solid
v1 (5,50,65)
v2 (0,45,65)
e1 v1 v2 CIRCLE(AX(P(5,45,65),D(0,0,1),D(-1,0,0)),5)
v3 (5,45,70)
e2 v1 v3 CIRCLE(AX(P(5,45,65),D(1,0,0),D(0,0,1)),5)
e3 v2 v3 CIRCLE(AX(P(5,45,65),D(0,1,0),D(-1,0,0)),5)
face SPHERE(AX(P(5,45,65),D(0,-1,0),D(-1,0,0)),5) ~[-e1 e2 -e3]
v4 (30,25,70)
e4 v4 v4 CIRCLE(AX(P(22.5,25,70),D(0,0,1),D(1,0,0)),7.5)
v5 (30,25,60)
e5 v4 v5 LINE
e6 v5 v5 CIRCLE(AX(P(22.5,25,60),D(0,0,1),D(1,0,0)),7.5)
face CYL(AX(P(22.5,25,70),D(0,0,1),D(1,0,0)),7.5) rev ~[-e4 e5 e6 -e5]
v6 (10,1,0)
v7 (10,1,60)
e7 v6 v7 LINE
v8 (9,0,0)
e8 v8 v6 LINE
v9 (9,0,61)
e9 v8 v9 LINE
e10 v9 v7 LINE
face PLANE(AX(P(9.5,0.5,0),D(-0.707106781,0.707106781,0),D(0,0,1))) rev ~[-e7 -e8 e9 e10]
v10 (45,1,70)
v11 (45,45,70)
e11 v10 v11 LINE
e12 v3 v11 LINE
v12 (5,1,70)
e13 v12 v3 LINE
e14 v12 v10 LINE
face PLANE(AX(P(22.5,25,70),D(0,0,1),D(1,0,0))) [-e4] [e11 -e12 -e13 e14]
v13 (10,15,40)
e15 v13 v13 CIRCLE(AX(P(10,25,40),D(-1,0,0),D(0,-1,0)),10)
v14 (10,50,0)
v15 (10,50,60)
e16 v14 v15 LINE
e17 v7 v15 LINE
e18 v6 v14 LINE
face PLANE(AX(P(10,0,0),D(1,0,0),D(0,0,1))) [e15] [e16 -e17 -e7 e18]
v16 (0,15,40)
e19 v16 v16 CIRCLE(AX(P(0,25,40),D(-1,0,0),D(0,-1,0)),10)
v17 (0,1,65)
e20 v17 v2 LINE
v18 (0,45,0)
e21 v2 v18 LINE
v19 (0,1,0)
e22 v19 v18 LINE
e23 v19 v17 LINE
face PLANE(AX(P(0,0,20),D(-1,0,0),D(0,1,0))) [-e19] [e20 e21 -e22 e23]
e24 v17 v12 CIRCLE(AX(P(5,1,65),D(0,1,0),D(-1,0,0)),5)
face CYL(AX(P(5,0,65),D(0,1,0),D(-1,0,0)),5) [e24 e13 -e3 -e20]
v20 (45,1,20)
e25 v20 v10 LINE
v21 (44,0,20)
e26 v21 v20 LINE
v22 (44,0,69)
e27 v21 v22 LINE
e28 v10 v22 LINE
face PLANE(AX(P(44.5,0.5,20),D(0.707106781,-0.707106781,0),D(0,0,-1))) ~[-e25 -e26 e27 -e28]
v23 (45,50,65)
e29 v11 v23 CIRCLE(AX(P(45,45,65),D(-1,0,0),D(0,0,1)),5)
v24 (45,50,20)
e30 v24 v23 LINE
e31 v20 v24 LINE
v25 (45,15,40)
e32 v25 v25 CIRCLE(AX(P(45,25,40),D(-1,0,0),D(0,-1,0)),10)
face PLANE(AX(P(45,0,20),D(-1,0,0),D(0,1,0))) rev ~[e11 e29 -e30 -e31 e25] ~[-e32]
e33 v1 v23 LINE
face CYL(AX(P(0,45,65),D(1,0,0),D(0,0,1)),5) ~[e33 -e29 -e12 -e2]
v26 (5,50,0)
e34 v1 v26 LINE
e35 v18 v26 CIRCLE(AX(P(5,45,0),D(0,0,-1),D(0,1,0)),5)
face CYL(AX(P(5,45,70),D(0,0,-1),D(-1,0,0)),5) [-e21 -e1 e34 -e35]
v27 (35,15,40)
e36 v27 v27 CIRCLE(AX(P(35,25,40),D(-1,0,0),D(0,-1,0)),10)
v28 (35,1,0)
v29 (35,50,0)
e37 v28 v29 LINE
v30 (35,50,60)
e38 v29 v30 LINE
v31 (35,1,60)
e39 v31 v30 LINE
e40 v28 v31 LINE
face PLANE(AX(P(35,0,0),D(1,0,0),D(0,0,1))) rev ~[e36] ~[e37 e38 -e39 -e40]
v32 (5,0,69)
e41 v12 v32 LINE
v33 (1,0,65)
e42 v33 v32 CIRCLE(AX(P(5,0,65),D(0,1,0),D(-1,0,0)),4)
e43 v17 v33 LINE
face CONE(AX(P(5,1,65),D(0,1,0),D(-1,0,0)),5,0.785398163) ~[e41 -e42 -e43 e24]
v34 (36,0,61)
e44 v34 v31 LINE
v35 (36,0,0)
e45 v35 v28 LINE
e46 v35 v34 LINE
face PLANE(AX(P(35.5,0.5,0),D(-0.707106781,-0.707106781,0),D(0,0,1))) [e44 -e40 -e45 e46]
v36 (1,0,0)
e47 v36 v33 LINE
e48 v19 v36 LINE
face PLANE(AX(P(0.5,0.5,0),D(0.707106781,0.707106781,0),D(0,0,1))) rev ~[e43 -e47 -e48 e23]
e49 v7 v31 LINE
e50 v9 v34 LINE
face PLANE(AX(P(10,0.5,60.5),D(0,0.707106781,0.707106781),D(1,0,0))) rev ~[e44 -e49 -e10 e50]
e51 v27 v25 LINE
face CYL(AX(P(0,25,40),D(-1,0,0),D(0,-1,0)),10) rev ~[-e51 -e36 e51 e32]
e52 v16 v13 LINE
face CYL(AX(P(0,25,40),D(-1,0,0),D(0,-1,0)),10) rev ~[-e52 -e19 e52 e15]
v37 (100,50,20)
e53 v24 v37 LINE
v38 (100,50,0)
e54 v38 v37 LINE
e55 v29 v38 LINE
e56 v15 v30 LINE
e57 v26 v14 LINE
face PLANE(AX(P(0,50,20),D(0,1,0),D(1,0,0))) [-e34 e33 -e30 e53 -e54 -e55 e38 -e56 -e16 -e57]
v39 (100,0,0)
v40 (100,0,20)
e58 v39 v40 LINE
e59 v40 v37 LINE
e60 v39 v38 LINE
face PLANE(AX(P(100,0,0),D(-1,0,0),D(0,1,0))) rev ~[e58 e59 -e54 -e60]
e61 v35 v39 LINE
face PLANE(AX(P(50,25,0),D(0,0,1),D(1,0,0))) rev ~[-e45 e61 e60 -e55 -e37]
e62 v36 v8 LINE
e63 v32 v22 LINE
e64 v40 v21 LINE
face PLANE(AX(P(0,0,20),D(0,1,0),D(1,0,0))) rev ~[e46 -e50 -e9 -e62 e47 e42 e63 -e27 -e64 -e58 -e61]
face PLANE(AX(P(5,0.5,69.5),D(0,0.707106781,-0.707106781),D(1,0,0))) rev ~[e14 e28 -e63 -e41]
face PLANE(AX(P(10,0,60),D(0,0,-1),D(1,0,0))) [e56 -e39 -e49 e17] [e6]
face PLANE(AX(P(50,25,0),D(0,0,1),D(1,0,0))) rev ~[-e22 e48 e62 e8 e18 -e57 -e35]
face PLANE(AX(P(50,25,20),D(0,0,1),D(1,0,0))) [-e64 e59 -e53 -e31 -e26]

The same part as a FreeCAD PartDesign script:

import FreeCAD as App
import Part
import Sketcher
from FreeCAD import Vector


def edges_at(feature, points):
    """Names of the edges that pass closest to the given points."""
    edges = feature.Shape.Edges
    near = lambda p: min(range(len(edges)), key=lambda i: edges[i].distToShape(Part.Vertex(*p))[0])
    return sorted({f"Edge{near(p) + 1}" for p in points})

doc = App.newDocument("Part")
body = doc.addObject("PartDesign::Body", "Body")

# Sketch on XY plane
sketch1 = body.newObject("Sketcher::SketchObject", "Sketch")
sketch1.AttachmentSupport = (doc.getObject("XY_Plane"), [""])
sketch1.MapMode = "FlatFace"
sketch1.addGeometry(Part.LineSegment(Vector(0, 50, 0), Vector(0, 0, 0)), False)
sketch1.addGeometry(Part.LineSegment(Vector(0, 0, 0), Vector(100, 0, 0)), False)
sketch1.addGeometry(Part.LineSegment(Vector(100, 0, 0), Vector(100, 50, 0)), False)
sketch1.addGeometry(Part.LineSegment(Vector(100, 50, 0), Vector(0, 50, 0)), False)
sketch1.addConstraint(Sketcher.Constraint("Coincident", 0, 2, 1, 1))
sketch1.addConstraint(Sketcher.Constraint("Coincident", 1, 2, 2, 1))
sketch1.addConstraint(Sketcher.Constraint("Coincident", 2, 2, 3, 1))
sketch1.addConstraint(Sketcher.Constraint("Coincident", 3, 2, 0, 1))
sketch1.addConstraint(Sketcher.Constraint("Vertical", 0))
sketch1.addConstraint(Sketcher.Constraint("Horizontal", 1))
sketch1.addConstraint(Sketcher.Constraint("Vertical", 2))
sketch1.addConstraint(Sketcher.Constraint("Horizontal", 3))
sketch1.addConstraint(Sketcher.Constraint("Coincident", 0, 2, -1, 1))
sketch1.addConstraint(Sketcher.Constraint("DistanceX", 1, 1, 1, 2, 100.0))
sketch1.addConstraint(Sketcher.Constraint("DistanceY", 0, 2, 0, 1, 50.0))
pad1 = body.newObject("PartDesign::Pad", "Pad")
pad1.Profile = sketch1
pad1.Length = 20

# Sketch on XY plane
sketch2 = body.newObject("Sketcher::SketchObject", "Sketch001")
sketch2.AttachmentSupport = (doc.getObject("XY_Plane"), [""])
sketch2.MapMode = "FlatFace"
sketch2.AttachmentOffset = App.Placement(Vector(0, 0, 20), App.Rotation())
sketch2.addGeometry(Part.LineSegment(Vector(0, 50, 0), Vector(0, 0, 0)), False)
sketch2.addGeometry(Part.LineSegment(Vector(0, 0, 0), Vector(45, 0, 0)), False)
sketch2.addGeometry(Part.LineSegment(Vector(45, 0, 0), Vector(45, 50, 0)), False)
sketch2.addGeometry(Part.LineSegment(Vector(45, 50, 0), Vector(0, 50, 0)), False)
sketch2.addConstraint(Sketcher.Constraint("Coincident", 0, 2, 1, 1))
sketch2.addConstraint(Sketcher.Constraint("Coincident", 1, 2, 2, 1))
sketch2.addConstraint(Sketcher.Constraint("Coincident", 2, 2, 3, 1))
sketch2.addConstraint(Sketcher.Constraint("Coincident", 3, 2, 0, 1))
sketch2.addConstraint(Sketcher.Constraint("Vertical", 0))
sketch2.addConstraint(Sketcher.Constraint("Horizontal", 1))
sketch2.addConstraint(Sketcher.Constraint("Vertical", 2))
sketch2.addConstraint(Sketcher.Constraint("Horizontal", 3))
sketch2.addConstraint(Sketcher.Constraint("Coincident", 0, 2, -1, 1))
sketch2.addConstraint(Sketcher.Constraint("DistanceX", 1, 1, 1, 2, 45.0))
sketch2.addConstraint(Sketcher.Constraint("DistanceY", 0, 2, 0, 1, 50.0))
pad2 = body.newObject("PartDesign::Pad", "Pad001")
pad2.Profile = sketch2
pad2.Length = 50

# Sketch on XZ plane
sketch3 = body.newObject("Sketcher::SketchObject", "Sketch002")
sketch3.AttachmentSupport = (doc.getObject("XZ_Plane"), [""])
sketch3.MapMode = "FlatFace"
sketch3.addGeometry(Part.LineSegment(Vector(10, 60, 0), Vector(10, 0, 0)), False)
sketch3.addGeometry(Part.LineSegment(Vector(10, 0, 0), Vector(35, 0, 0)), False)
sketch3.addGeometry(Part.LineSegment(Vector(35, 0, 0), Vector(35, 60, 0)), False)
sketch3.addGeometry(Part.LineSegment(Vector(35, 60, 0), Vector(10, 60, 0)), False)
sketch3.addConstraint(Sketcher.Constraint("Coincident", 0, 2, 1, 1))
sketch3.addConstraint(Sketcher.Constraint("Coincident", 1, 2, 2, 1))
sketch3.addConstraint(Sketcher.Constraint("Coincident", 2, 2, 3, 1))
sketch3.addConstraint(Sketcher.Constraint("Coincident", 3, 2, 0, 1))
sketch3.addConstraint(Sketcher.Constraint("Vertical", 0))
sketch3.addConstraint(Sketcher.Constraint("Horizontal", 1))
sketch3.addConstraint(Sketcher.Constraint("Vertical", 2))
sketch3.addConstraint(Sketcher.Constraint("Horizontal", 3))
sketch3.addConstraint(Sketcher.Constraint("PointOnObject", 0, 2, -1))
sketch3.addConstraint(Sketcher.Constraint("DistanceX", 1, 1, 1, 2, 25.0))
sketch3.addConstraint(Sketcher.Constraint("DistanceY", 0, 2, 0, 1, 60.0))
sketch3.addConstraint(Sketcher.Constraint("DistanceX", -1, 1, 0, 2, 10.0))
pocket1 = body.newObject("PartDesign::Pocket", "Pocket")
pocket1.Profile = sketch3
pocket1.Type = "ThroughAll"

# Sketch on YZ plane
sketch4 = body.newObject("Sketcher::SketchObject", "Sketch003")
sketch4.AttachmentSupport = (doc.getObject("YZ_Plane"), [""])
sketch4.MapMode = "FlatFace"
sketch4.addGeometry(Part.Circle(Vector(25, 40, 0), Vector(0, 0, 1), 10), False)
sketch4.addConstraint(Sketcher.Constraint("Diameter", 0, 20.0))
sketch4.addConstraint(Sketcher.Constraint("DistanceX", -1, 1, 0, 3, 25.0))
sketch4.addConstraint(Sketcher.Constraint("DistanceY", -1, 1, 0, 3, 40.0))
pocket2 = body.newObject("PartDesign::Pocket", "Pocket001")
pocket2.Profile = sketch4
pocket2.Type = "ThroughAll"
pocket2.Reversed = True

# Sketch on XY plane
sketch5 = body.newObject("Sketcher::SketchObject", "Sketch004")
sketch5.AttachmentSupport = (doc.getObject("XY_Plane"), [""])
sketch5.MapMode = "FlatFace"
sketch5.AttachmentOffset = App.Placement(Vector(0, 0, 70), App.Rotation())
sketch5.addGeometry(Part.Circle(Vector(22.5, 25, 0), Vector(0, 0, 1), 7.5), False)
sketch5.addConstraint(Sketcher.Constraint("Diameter", 0, 15.0))
sketch5.addConstraint(Sketcher.Constraint("DistanceY", -1, 1, 0, 3, 25.0))
sketch5.addConstraint(Sketcher.Constraint("DistanceX", -1, 1, 0, 3, 22.5))
pocket3 = body.newObject("PartDesign::Pocket", "Pocket002")
pocket3.Profile = sketch5
pocket3.Type = "ThroughAll"
doc.recompute()

fillet = body.newObject("PartDesign::Fillet", "Fillet")
fillet.Base = (pocket3, edges_at(pocket3, [(0, 25, 70), (0, 50, 35), (22.5, 50, 70)]))
fillet.Radius = 5
doc.recompute()

chamfer = body.newObject("PartDesign::Chamfer", "Chamfer")
chamfer.Base = (fillet, edges_at(fillet, [
    (0, 0, 32.5),
    (25, 0, 70),
    (45, 0, 45),
    (35, 0, 30),
    (22.5, 0, 60),
    (10, 0, 30),
]))
chamfer.Size = 1

doc.recompute()
